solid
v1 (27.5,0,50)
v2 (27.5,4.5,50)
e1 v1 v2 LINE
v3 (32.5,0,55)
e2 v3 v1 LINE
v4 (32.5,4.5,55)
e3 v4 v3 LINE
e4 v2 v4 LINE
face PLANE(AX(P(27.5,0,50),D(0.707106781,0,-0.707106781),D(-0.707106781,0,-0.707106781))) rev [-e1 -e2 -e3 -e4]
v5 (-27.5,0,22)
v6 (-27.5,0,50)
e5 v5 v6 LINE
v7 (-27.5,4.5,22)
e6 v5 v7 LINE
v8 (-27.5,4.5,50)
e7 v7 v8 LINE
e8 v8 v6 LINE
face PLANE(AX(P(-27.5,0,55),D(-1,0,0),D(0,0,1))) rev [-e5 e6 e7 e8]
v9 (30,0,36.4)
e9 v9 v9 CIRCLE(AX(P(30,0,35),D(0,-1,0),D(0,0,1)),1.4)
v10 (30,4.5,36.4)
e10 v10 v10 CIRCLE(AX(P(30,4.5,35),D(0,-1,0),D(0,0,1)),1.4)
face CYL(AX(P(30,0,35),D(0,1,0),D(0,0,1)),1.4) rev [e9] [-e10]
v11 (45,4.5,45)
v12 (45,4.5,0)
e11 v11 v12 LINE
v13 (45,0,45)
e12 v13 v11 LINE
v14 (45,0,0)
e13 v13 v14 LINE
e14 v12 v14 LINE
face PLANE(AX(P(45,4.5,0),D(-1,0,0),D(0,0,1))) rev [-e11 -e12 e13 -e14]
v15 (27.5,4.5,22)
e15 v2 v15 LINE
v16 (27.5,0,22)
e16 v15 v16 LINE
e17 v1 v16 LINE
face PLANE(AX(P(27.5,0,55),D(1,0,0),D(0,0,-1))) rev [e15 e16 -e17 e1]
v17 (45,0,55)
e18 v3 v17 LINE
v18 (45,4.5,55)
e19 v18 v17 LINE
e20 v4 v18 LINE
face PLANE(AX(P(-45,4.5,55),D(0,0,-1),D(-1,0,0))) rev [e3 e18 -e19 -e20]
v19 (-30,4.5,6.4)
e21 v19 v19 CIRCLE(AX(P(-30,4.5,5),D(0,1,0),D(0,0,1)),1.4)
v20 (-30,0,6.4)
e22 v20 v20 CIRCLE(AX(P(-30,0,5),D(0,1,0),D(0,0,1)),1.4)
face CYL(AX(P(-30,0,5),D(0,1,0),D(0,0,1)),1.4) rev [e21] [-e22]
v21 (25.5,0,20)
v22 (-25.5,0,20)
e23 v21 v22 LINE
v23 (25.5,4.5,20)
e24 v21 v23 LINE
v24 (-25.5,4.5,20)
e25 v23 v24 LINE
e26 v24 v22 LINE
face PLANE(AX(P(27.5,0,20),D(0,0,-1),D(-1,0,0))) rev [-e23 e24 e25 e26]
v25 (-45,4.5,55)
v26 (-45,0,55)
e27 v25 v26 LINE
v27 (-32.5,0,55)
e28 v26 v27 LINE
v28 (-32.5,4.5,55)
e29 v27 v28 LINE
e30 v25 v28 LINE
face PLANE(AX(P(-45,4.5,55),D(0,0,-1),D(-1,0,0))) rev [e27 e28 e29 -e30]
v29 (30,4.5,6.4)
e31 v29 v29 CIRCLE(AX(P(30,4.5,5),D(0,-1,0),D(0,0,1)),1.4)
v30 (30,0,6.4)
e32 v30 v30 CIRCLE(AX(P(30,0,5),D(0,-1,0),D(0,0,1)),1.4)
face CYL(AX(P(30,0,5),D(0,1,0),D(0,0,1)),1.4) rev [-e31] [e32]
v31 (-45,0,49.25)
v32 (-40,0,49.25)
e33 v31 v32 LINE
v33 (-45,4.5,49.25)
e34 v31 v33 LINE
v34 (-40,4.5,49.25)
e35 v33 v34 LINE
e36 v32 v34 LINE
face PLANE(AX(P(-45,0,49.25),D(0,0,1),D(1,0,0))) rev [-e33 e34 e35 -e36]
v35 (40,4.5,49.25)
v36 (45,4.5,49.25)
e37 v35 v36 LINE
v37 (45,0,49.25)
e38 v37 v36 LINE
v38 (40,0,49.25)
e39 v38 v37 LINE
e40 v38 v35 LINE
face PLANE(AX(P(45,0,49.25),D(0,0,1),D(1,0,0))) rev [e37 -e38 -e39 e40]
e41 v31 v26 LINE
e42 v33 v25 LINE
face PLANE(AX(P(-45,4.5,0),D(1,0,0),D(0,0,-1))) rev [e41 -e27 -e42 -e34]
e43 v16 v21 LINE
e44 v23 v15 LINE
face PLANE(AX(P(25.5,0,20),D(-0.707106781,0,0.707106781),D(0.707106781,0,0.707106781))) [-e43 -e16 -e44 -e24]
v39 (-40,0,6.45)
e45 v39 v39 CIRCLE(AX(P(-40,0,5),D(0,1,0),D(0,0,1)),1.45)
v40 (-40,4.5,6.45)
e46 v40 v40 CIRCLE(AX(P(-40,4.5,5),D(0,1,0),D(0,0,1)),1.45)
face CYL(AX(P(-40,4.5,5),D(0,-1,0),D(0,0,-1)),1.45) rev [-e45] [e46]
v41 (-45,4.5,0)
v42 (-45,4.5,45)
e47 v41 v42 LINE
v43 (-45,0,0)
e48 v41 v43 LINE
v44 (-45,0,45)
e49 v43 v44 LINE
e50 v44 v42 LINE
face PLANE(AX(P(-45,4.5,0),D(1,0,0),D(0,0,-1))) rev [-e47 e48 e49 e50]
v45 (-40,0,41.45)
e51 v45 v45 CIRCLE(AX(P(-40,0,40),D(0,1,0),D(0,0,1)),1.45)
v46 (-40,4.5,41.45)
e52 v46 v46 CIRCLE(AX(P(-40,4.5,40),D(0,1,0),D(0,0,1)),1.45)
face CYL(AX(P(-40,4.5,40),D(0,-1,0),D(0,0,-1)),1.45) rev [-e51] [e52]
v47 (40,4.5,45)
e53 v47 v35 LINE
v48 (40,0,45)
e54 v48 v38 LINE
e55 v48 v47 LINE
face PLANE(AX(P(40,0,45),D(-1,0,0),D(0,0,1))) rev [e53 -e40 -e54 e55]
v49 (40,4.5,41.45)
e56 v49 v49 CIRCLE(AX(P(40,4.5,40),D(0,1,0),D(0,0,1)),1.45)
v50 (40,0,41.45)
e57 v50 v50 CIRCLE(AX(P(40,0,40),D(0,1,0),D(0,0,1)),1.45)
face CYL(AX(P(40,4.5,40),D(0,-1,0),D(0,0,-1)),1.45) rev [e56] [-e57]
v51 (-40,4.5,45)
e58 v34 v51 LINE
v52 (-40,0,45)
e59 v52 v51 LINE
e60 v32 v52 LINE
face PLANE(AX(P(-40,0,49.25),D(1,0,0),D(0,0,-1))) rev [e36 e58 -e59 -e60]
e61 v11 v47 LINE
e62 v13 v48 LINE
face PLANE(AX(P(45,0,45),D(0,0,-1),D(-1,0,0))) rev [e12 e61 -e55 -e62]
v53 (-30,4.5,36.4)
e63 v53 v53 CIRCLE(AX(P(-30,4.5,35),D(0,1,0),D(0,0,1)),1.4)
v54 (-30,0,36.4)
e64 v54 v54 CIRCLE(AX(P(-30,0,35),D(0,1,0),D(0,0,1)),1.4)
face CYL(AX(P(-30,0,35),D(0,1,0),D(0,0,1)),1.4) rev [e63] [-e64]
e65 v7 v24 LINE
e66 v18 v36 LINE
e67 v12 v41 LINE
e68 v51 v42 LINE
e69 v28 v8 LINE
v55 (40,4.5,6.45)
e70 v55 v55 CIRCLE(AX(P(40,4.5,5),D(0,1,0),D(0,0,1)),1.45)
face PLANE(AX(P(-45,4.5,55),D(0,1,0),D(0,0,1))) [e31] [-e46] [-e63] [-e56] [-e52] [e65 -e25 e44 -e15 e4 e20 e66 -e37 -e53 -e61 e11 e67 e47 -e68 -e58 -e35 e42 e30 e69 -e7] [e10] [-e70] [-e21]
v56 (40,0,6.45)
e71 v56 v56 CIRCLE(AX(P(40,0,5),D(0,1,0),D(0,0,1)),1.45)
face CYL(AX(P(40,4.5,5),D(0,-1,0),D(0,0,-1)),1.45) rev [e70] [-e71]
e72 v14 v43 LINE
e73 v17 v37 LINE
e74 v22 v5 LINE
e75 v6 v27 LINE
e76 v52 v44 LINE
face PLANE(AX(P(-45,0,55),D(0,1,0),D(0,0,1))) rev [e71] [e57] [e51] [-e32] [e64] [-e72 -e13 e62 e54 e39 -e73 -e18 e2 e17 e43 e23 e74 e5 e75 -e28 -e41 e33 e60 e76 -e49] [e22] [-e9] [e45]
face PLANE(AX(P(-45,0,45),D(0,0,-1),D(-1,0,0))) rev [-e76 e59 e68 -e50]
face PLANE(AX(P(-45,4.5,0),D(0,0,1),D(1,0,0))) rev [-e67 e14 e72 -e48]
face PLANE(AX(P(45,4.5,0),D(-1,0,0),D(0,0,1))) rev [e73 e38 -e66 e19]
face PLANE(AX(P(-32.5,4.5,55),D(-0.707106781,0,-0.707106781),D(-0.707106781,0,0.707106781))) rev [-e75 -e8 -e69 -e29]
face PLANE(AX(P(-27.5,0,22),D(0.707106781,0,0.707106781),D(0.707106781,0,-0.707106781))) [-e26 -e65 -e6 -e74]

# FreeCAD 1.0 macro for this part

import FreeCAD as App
import Part
import Sketcher
Q = App.Units.Quantity


def edges_at(feature, points):
    """Names of the edges that pass closest to the given points."""
    edges = feature.Shape.Edges
    near = lambda p: min(range(len(edges)), key=lambda i: edges[i].distToShape(Part.Vertex(*p))[0])
    return sorted({f"Edge{near(p) + 1}" for p in points})


def add_polygon(sketch, points):
    """Adds a closed chain of lines whose ends are joined by coincident constraints."""
    first, n = sketch.GeometryCount, len(points)
    for a, b in zip(points, points[1:] + points[:1]):
        sketch.addGeometry(Part.LineSegment(App.Vector(*a, 0), App.Vector(*b, 0)), False)
    for i in range(n):
        sketch.addConstraint(Sketcher.Constraint("Coincident", first + i, 2, first + (i + 1) % n, 1))

doc = App.newDocument("Part")
params = doc.addObject("Spreadsheet::Sheet", "Params")
for row, (alias, value) in enumerate([
    ("sketch1_diameter", "2.9 mm"),
    ("sketch1_width", "90 mm"),
    ("sketch1_height", "55 mm"),
    ("pad1_length", "4.5 mm"),
    ("sketch2_width", "55 mm"),
    ("sketch2_height", "35 mm"),
    ("sketch3_width", "5 mm"),
    ("sketch3_height", "4.25 mm"),
    ("sketch4_diameter", "2.8 mm"),
    ("chamfer_size", "5 mm"),
    ("chamfer2_size", "2 mm"),
], start=1):
    params.set(f"A{row}", alias)
    params.set(f"B{row}", "=" + value)
    params.setAlias(f"B{row}", alias)

body = doc.addObject("PartDesign::Body", "Body")

sketch1 = body.newObject("Sketcher::SketchObject", "Sketch")
sketch1.AttachmentSupport = (doc.getObject("XZ_Plane"), [""])
sketch1.MapMode = "FlatFace"
add_polygon(sketch1, [(-45, 0), (-45, 55), (45, 55), (45, 0)])
sketch1.addGeometry(Part.Circle(App.Vector(-40, 40, 0), App.Vector(0, 0, 1), 1.4), False)
sketch1.addGeometry(Part.Circle(App.Vector(40, 40, 0), App.Vector(0, 0, 1), 1.4), False)
sketch1.addGeometry(Part.Circle(App.Vector(-40, 5, 0), App.Vector(0, 0, 1), 1.4), False)
sketch1.addGeometry(Part.Circle(App.Vector(40, 5, 0), App.Vector(0, 0, 1), 1.4), False)
sketch1.addConstraint(Sketcher.Constraint("Vertical", 0))
sketch1.addConstraint(Sketcher.Constraint("Horizontal", 1))
sketch1.addConstraint(Sketcher.Constraint("Vertical", 2))
sketch1.addConstraint(Sketcher.Constraint("Horizontal", 3))
sketch1.addConstraint(Sketcher.Constraint("Equal", 4, 5))
sketch1.addConstraint(Sketcher.Constraint("Equal", 5, 6))
sketch1.addConstraint(Sketcher.Constraint("Equal", 6, 7))
sketch1.addConstraint(Sketcher.Constraint("Symmetric", 2, 2, 3, 2, -1, 1))
sketch1.addConstraint(Sketcher.Constraint("Symmetric", 4, 3, 5, 3, -2))
sketch1.addConstraint(Sketcher.Constraint("Symmetric", 6, 3, 7, 3, -2))
sketch1.addConstraint(Sketcher.Constraint("Vertical", 4, 3, 6, 3))
sketch1.addConstraint(Sketcher.Constraint("Diameter", 4, Q("2.9 mm")))
sketch1.addConstraint(Sketcher.Constraint("DistanceX", 1, 1, 1, 2, Q("90 mm")))
sketch1.addConstraint(Sketcher.Constraint("DistanceY", 0, 1, 0, 2, Q("55 mm")))
sketch1.addConstraint(Sketcher.Constraint("DistanceX", 4, 3, -1, 1, Q("40 mm")))
sketch1.addConstraint(Sketcher.Constraint("DistanceY", -1, 1, 4, 3, Q("40 mm")))
sketch1.addConstraint(Sketcher.Constraint("DistanceY", -1, 1, 6, 3, Q("5 mm")))
sketch1.setExpression("Constraints[15]", "Params.sketch1_diameter")
sketch1.setExpression("Constraints[16]", "Params.sketch1_width")
sketch1.setExpression("Constraints[17]", "Params.sketch1_height")
pad1 = body.newObject("PartDesign::Pad", "Pad")
pad1.Profile = sketch1
pad1.setExpression("Length", "Params.pad1_length")
pad1.Reversed = True

sketch2 = body.newObject("Sketcher::SketchObject", "Sketch001")
sketch2.AttachmentSupport = (doc.getObject("XZ_Plane"), [""])
sketch2.MapMode = "FlatFace"
sketch2.AttachmentOffset = App.Placement(App.Vector(0, 0, -4.5), App.Rotation())
add_polygon(sketch2, [(-28, 20), (-28, 55), (28, 55), (28, 20)])
sketch2.addConstraint(Sketcher.Constraint("Vertical", 0))
sketch2.addConstraint(Sketcher.Constraint("Horizontal", 1))
sketch2.addConstraint(Sketcher.Constraint("Vertical", 2))
sketch2.addConstraint(Sketcher.Constraint("Horizontal", 3))
sketch2.addConstraint(Sketcher.Constraint("DistanceX", 1, 1, 1, 2, Q("55 mm")))
sketch2.addConstraint(Sketcher.Constraint("DistanceY", 0, 1, 0, 2, Q("35 mm")))
sketch2.addConstraint(Sketcher.Constraint("DistanceY", -1, 1, 0, 2, Q("55 mm")))
sketch2.addConstraint(Sketcher.Constraint("DistanceX", 0, 2, -1, 1, Q("27.5 mm")))
sketch2.setExpression("Constraints[8]", "Params.sketch2_width")
sketch2.setExpression("Constraints[9]", "Params.sketch2_height")
pocket1 = body.newObject("PartDesign::Pocket", "Pocket")
pocket1.Profile = sketch2
pocket1.Type = "ThroughAll"
pocket1.Reversed = True

sketch3 = body.newObject("Sketcher::SketchObject", "Sketch002")
sketch3.AttachmentSupport = (doc.getObject("XZ_Plane"), [""])
sketch3.MapMode = "FlatFace"
sketch3.AttachmentOffset = App.Placement(App.Vector(0, 0, -4.5), App.Rotation())
add_polygon(sketch3, [(-45, 45), (-45, 49.2), (-40, 49.2), (-40, 45)])
add_polygon(sketch3, [(40, 45), (40, 49.2), (45, 49.2), (45, 45)])
sketch3.addConstraint(Sketcher.Constraint("Vertical", 0))
sketch3.addConstraint(Sketcher.Constraint("Horizontal", 1))
sketch3.addConstraint(Sketcher.Constraint("Vertical", 2))
sketch3.addConstraint(Sketcher.Constraint("Horizontal", 3))
sketch3.addConstraint(Sketcher.Constraint("Vertical", 4))
sketch3.addConstraint(Sketcher.Constraint("Horizontal", 5))
sketch3.addConstraint(Sketcher.Constraint("Vertical", 6))
sketch3.addConstraint(Sketcher.Constraint("Horizontal", 7))
sketch3.addConstraint(Sketcher.Constraint("Symmetric", 1, 2, 4, 2, -2))
sketch3.addConstraint(Sketcher.Constraint("Symmetric", 3, 2, 6, 2, -2))
sketch3.addConstraint(Sketcher.Constraint("DistanceX", 1, 1, 1, 2, Q("5 mm")))
sketch3.addConstraint(Sketcher.Constraint("DistanceX", 0, 2, -1, 1, Q("45 mm")))
sketch3.addConstraint(Sketcher.Constraint("DistanceY", -1, 1, 2, 2, Q("45 mm")))
sketch3.addConstraint(Sketcher.Constraint("DistanceY", 0, 1, 0, 2, Q("4.25 mm")))
sketch3.setExpression("Constraints[18]", "Params.sketch3_width")
sketch3.setExpression("Constraints[21]", "Params.sketch3_height")
pocket2 = body.newObject("PartDesign::Pocket", "Pocket001")
pocket2.Profile = sketch3
pocket2.Type = "ThroughAll"
pocket2.Reversed = True

sketch4 = body.newObject("Sketcher::SketchObject", "Sketch003")
sketch4.AttachmentSupport = (doc.getObject("XZ_Plane"), [""])
sketch4.MapMode = "FlatFace"
sketch4.AttachmentOffset = App.Placement(App.Vector(0, 0, -4.5), App.Rotation())
sketch4.addGeometry(Part.Circle(App.Vector(-30, 35, 0), App.Vector(0, 0, 1), 1.4), False)
sketch4.addGeometry(Part.Circle(App.Vector(-30, 5, 0), App.Vector(0, 0, 1), 1.4), False)
sketch4.addConstraint(Sketcher.Constraint("Equal", 0, 1))
sketch4.addConstraint(Sketcher.Constraint("Vertical", 0, 3, 1, 3))
sketch4.addConstraint(Sketcher.Constraint("Diameter", 0, Q("2.8 mm")))
sketch4.addConstraint(Sketcher.Constraint("DistanceX", 0, 3, -1, 1, Q("30 mm")))
sketch4.addConstraint(Sketcher.Constraint("DistanceY", -1, 1, 0, 3, Q("35 mm")))
sketch4.addConstraint(Sketcher.Constraint("DistanceY", -1, 1, 1, 3, Q("5 mm")))
sketch4.setExpression("Constraints[2]", "Params.sketch4_diameter")
pocket3 = body.newObject("PartDesign::Pocket", "Pocket002")
pocket3.Profile = sketch4
pocket3.Type = "ThroughAll"
pocket3.Reversed = True
doc.recompute()

mirrored = body.newObject("PartDesign::Mirrored", "Mirrored")
mirrored.Originals = [pocket3]
mirrored.MirrorPlane = (doc.getObject("YZ_Plane"), [""])
body.Tip = mirrored
doc.recompute()

chamfer = body.newObject("PartDesign::Chamfer", "Chamfer")
chamfer.Base = (mirrored, edges_at(mirrored, [(27.5, 2.25, 55), (-27.5, 2.25, 55)]))
chamfer.setExpression("Size", "Params.chamfer_size")
doc.recompute()

chamfer2 = body.newObject("PartDesign::Chamfer", "Chamfer001")
chamfer2.Base = (chamfer, edges_at(chamfer, [(27.5, 2.25, 20), (-27.5, 2.25, 20)]))
chamfer2.setExpression("Size", "Params.chamfer2_size")

doc.recompute()
